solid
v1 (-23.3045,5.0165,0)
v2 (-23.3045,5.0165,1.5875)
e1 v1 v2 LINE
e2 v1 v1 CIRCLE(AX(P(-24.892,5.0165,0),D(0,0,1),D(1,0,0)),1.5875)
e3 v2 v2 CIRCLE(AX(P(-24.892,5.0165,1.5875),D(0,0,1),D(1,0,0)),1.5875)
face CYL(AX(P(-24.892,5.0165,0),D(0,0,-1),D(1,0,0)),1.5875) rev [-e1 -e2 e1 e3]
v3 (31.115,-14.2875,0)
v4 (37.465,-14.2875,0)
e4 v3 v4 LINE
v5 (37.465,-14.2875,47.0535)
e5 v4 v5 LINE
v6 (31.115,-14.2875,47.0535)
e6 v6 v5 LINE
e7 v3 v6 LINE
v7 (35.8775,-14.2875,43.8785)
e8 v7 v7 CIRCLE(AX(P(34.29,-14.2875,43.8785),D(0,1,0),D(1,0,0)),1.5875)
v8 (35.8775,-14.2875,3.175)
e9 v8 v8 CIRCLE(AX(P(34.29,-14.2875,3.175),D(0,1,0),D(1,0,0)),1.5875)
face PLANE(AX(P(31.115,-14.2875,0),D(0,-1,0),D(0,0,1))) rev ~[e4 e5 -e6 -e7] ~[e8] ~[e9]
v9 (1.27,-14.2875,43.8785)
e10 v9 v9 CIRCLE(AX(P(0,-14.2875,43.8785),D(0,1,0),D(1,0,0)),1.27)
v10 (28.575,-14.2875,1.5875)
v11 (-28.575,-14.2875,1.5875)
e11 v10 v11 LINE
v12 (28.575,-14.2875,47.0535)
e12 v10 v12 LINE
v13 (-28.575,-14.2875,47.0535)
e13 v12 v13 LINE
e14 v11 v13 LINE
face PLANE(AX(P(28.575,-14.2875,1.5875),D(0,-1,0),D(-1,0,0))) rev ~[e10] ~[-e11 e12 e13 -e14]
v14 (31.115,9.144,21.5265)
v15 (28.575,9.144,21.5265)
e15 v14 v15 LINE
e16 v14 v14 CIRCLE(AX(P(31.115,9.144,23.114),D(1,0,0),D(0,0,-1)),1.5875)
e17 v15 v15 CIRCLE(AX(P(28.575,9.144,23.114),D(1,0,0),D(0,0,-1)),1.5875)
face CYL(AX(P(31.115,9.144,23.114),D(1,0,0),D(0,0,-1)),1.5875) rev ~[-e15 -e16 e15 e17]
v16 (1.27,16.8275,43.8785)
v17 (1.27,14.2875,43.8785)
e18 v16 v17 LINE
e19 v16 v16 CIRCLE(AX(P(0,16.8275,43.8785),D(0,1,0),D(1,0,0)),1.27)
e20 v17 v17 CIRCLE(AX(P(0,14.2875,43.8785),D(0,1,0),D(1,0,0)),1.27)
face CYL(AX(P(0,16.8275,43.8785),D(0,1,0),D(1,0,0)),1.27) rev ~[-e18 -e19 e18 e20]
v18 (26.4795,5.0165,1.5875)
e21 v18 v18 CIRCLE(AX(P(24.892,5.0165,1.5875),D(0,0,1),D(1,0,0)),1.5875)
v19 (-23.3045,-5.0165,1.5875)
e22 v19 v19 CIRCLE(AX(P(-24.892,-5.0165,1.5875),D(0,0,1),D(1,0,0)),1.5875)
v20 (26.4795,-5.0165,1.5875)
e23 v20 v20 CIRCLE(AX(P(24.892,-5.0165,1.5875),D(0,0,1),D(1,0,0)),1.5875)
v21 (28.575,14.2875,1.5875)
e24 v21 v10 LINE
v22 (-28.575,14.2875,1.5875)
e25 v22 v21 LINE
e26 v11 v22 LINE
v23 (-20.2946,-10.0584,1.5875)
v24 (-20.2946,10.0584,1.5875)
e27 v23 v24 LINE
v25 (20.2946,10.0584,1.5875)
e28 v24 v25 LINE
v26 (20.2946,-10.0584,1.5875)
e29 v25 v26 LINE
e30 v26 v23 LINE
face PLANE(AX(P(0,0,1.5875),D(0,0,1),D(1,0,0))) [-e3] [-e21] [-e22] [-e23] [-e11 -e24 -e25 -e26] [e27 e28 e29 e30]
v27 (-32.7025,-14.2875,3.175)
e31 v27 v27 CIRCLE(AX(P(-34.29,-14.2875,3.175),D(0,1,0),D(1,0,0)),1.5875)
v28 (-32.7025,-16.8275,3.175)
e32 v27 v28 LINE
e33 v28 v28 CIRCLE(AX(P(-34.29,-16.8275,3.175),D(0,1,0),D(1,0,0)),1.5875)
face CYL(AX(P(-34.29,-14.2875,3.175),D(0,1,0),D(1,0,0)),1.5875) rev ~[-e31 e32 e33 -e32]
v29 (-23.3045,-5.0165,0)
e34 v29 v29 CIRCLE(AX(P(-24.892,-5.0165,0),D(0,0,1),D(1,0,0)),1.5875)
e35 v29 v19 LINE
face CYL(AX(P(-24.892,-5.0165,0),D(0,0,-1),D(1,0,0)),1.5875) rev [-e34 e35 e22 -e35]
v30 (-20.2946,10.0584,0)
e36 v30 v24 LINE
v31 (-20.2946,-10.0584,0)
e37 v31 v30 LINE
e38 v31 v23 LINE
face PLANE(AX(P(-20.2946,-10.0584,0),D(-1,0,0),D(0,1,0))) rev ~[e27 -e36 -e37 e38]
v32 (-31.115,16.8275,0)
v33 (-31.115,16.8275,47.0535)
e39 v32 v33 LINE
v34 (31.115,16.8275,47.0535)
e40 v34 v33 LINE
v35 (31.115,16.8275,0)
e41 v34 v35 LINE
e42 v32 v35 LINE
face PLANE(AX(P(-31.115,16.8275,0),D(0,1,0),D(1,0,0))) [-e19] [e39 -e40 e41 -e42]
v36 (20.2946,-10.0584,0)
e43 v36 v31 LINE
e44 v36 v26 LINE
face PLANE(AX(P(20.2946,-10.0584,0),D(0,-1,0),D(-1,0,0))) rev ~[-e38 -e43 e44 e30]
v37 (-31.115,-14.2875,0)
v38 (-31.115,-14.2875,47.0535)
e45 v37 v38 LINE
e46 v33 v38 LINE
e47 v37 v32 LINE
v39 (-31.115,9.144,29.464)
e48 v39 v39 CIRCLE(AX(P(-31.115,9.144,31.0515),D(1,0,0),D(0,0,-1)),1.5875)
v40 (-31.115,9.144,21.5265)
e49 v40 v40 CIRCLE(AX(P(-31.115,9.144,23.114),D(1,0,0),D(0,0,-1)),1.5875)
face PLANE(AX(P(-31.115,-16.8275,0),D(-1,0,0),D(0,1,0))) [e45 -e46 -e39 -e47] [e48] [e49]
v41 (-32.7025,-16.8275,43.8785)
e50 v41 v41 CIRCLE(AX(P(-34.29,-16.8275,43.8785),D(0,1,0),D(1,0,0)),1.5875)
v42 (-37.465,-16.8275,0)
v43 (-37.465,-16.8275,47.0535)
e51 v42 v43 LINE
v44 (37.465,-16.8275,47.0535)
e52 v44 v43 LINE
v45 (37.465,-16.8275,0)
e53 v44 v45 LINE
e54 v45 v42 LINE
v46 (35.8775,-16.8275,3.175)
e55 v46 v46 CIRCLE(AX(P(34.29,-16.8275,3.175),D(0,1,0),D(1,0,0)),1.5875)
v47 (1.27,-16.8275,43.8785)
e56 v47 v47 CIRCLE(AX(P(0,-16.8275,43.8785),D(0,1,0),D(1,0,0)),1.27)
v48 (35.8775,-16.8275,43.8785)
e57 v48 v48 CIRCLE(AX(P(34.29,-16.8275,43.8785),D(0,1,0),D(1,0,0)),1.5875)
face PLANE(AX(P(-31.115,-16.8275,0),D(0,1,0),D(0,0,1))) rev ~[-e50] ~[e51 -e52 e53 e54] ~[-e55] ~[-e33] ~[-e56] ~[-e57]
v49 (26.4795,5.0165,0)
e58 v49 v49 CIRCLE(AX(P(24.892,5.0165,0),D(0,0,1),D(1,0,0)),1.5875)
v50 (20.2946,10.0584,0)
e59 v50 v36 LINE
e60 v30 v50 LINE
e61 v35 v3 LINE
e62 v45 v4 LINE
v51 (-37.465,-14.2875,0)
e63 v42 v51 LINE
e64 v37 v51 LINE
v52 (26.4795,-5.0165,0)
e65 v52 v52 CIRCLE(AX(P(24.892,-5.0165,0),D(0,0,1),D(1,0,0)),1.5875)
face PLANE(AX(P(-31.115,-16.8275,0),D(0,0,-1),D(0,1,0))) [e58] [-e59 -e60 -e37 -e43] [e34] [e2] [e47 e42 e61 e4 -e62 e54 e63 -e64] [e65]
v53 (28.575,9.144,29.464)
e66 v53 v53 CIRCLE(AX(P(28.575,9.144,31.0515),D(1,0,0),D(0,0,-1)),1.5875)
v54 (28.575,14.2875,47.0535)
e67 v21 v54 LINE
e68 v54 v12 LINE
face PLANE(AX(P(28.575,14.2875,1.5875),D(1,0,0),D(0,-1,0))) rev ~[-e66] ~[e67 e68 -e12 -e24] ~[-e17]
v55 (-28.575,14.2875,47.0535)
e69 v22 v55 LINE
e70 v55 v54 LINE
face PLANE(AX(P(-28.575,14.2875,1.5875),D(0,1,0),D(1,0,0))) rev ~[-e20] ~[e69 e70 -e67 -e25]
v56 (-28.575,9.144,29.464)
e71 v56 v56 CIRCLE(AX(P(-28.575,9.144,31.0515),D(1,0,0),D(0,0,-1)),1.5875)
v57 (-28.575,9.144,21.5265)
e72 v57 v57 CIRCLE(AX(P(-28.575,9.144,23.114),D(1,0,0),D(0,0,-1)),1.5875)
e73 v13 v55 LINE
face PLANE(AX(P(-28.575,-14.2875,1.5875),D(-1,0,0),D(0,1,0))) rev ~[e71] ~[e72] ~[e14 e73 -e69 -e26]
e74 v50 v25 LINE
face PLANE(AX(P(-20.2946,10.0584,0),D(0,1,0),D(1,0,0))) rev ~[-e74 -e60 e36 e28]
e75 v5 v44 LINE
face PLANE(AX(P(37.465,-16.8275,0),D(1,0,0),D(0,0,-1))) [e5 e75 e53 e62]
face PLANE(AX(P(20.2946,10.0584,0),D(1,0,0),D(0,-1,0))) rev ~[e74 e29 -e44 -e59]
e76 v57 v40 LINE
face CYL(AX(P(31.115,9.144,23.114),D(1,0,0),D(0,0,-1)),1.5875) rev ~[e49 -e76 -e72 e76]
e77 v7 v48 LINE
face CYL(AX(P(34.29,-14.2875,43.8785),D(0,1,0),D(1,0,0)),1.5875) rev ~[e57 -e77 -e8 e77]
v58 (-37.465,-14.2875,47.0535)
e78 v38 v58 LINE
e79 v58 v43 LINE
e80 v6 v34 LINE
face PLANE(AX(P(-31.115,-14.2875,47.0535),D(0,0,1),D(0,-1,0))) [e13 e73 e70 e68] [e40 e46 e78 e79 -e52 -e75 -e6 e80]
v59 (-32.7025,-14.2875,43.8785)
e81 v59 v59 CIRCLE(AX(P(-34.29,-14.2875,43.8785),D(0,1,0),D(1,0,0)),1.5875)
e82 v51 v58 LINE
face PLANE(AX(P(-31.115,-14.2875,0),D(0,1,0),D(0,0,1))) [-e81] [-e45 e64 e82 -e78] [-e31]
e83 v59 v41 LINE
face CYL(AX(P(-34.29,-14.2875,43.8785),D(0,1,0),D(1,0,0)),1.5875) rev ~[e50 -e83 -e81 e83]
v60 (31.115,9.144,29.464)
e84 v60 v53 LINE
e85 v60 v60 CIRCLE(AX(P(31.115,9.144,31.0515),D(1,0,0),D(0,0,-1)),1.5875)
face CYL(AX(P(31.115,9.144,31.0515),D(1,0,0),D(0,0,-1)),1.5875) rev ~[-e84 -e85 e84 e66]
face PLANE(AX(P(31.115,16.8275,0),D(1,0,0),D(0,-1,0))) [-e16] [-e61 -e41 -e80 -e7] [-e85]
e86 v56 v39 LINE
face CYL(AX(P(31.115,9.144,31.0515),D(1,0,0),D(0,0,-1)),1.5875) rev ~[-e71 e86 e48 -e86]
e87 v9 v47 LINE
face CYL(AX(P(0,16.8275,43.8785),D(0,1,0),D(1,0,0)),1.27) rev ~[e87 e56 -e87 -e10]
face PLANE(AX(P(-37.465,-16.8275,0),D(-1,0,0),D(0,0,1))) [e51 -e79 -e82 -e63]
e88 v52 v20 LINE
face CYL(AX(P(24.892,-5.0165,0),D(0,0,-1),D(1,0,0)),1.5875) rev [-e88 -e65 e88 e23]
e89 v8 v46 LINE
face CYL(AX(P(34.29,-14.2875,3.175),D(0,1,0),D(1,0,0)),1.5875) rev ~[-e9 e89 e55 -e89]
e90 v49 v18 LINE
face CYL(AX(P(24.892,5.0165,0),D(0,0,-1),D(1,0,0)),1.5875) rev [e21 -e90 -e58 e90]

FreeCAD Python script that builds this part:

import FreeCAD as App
import Part
import Sketcher
from FreeCAD import Vector
Q = App.Units.Quantity

doc = App.newDocument("Part")
params = doc.addObject("Spreadsheet::Sheet", "Params")
for row, (alias, value) in enumerate([
    ("sketch1_diameter", "0.125 in"),
    ("sketch1_width", "2.45 in"),
    ("sketch1_width2", "1.598 in"),
    ("sketch1_height", "1.325 in"),
    ("sketch1_height2", "0.792 in"),
    ("pad1_length", "0.0625 in"),
    ("sketch2_width", "2.25 in"),
    ("sketch2_height", "1.125 in"),
    ("sketch2_width2", "2.45 in"),
    ("pad2_length", "1.79 in"),
    ("sketch3_diameter", "0.125 in"),
    ("sketch4_width", "0.1 in"),
    ("pad3_length", "0.25 in"),
    ("sketch5_diameter", "0.125 in"),
    ("pocket2_length", "0.25 in"),
    ("sketch6_width", "0.1 in"),
    ("pad4_length", "0.25 in"),
    ("sketch7_diameter", "0.125 in"),
    ("pocket3_length", "0.25 in"),
    ("sketch8_diameter", "0.1 in"),
], start=1):
    params.set(f"A{row}", alias)
    params.set(f"B{row}", "=" + value)
    params.setAlias(f"B{row}", alias)

body = doc.addObject("PartDesign::Body", "Body")

sketch1 = doc.addObject("Sketcher::SketchObject", "Sketch")
body.addObject(sketch1)
sketch1.AttachmentSupport = (doc.XY_Plane, [""])
sketch1.MapMode = "FlatFace"
sketch1.addGeometry(Part.LineSegment(Vector(31.1, 16.8, 0), Vector(-31.1, 16.8, 0)), False)
sketch1.addGeometry(Part.LineSegment(Vector(-31.1, 16.8, 0), Vector(-31.1, -16.8, 0)), False)
sketch1.addGeometry(Part.LineSegment(Vector(-31.1, -16.8, 0), Vector(31.1, -16.8, 0)), False)
sketch1.addGeometry(Part.LineSegment(Vector(31.1, -16.8, 0), Vector(31.1, 16.8, 0)), False)
sketch1.addGeometry(Part.Circle(Vector(-24.9, -5, 0), Vector(0, 0, 1), 1.6), False)
sketch1.addGeometry(Part.Circle(Vector(24.9, -5, 0), Vector(0, 0, 1), 1.6), False)
sketch1.addGeometry(Part.Circle(Vector(-24.9, 5, 0), Vector(0, 0, 1), 1.6), False)
sketch1.addGeometry(Part.LineSegment(Vector(-20.3, -10.1, 0), Vector(-20.3, 10.1, 0)), False)
sketch1.addGeometry(Part.LineSegment(Vector(-20.3, 10.1, 0), Vector(20.3, 10.1, 0)), False)
sketch1.addGeometry(Part.LineSegment(Vector(20.3, 10.1, 0), Vector(20.3, -10.1, 0)), False)
sketch1.addGeometry(Part.LineSegment(Vector(20.3, -10.1, 0), Vector(-20.3, -10.1, 0)), False)
sketch1.addGeometry(Part.Circle(Vector(24.9, 5, 0), Vector(0, 0, 1), 1.6), False)
sketch1.addConstraint(Sketcher.Constraint("Coincident", 0, 2, 1, 1))
sketch1.addConstraint(Sketcher.Constraint("Coincident", 1, 2, 2, 1))
sketch1.addConstraint(Sketcher.Constraint("Coincident", 2, 2, 3, 1))
sketch1.addConstraint(Sketcher.Constraint("Coincident", 3, 2, 0, 1))
sketch1.addConstraint(Sketcher.Constraint("Coincident", 7, 2, 8, 1))
sketch1.addConstraint(Sketcher.Constraint("Coincident", 8, 2, 9, 1))
sketch1.addConstraint(Sketcher.Constraint("Coincident", 9, 2, 10, 1))
sketch1.addConstraint(Sketcher.Constraint("Coincident", 10, 2, 7, 1))
sketch1.addConstraint(Sketcher.Constraint("Horizontal", 0))
sketch1.addConstraint(Sketcher.Constraint("Vertical", 1))
sketch1.addConstraint(Sketcher.Constraint("Horizontal", 2))
sketch1.addConstraint(Sketcher.Constraint("Vertical", 3))
sketch1.addConstraint(Sketcher.Constraint("Vertical", 7))
sketch1.addConstraint(Sketcher.Constraint("Horizontal", 8))
sketch1.addConstraint(Sketcher.Constraint("Vertical", 9))
sketch1.addConstraint(Sketcher.Constraint("Horizontal", 10))
sketch1.addConstraint(Sketcher.Constraint("Equal", 4, 5))
sketch1.addConstraint(Sketcher.Constraint("Equal", 5, 6))
sketch1.addConstraint(Sketcher.Constraint("Equal", 6, 11))
sketch1.addConstraint(Sketcher.Constraint("Symmetric", 5, 3, 6, 3, -1, 1))
sketch1.addConstraint(Sketcher.Constraint("Symmetric", 4, 3, 11, 3, -1, 1))
sketch1.addConstraint(Sketcher.Constraint("Symmetric", 0, 2, 2, 2, -1, 1))
sketch1.addConstraint(Sketcher.Constraint("Symmetric", 7, 2, 9, 2, -1, 1))
sketch1.addConstraint(Sketcher.Constraint("Symmetric", 4, 3, 5, 3, -2))
sketch1.addConstraint(Sketcher.Constraint("Diameter", 4, Q("0.125 in")))
sketch1.addConstraint(Sketcher.Constraint("DistanceX", 0, 2, 0, 1, Q("2.45 in")))
sketch1.addConstraint(Sketcher.Constraint("DistanceX", 8, 1, 8, 2, Q("1.598 in")))
sketch1.addConstraint(Sketcher.Constraint("DistanceY", 1, 2, 1, 1, Q("1.325 in")))
sketch1.addConstraint(Sketcher.Constraint("DistanceY", 7, 1, 7, 2, Q("0.792 in")))
sketch1.addConstraint(Sketcher.Constraint("DistanceX", 4, 3, -1, 1, Q("0.98 in")))
sketch1.addConstraint(Sketcher.Constraint("DistanceY", 4, 3, -1, 1, Q("0.1975 in")))
sketch1.setExpression("Constraints[24]", "Params.sketch1_diameter")
sketch1.setExpression("Constraints[25]", "Params.sketch1_width")
sketch1.setExpression("Constraints[26]", "Params.sketch1_width2")
sketch1.setExpression("Constraints[27]", "Params.sketch1_height")
sketch1.setExpression("Constraints[28]", "Params.sketch1_height2")
pad1 = doc.addObject("PartDesign::Pad", "Pad")
body.addObject(pad1)
pad1.Profile = sketch1
pad1.setExpression("Length", "Params.pad1_length")

sketch2 = doc.addObject("Sketcher::SketchObject", "Sketch001")
body.addObject(sketch2)
sketch2.AttachmentSupport = (doc.XY_Plane, [""])
sketch2.MapMode = "FlatFace"
sketch2.AttachmentOffset = App.Placement(Vector(0, 0, 0.0625 * 25.4), App.Rotation())
sketch2.addGeometry(Part.LineSegment(Vector(31, -17, 0), Vector(31, 17, 0)), False)
sketch2.addGeometry(Part.LineSegment(Vector(31, 17, 0), Vector(-31, 17, 0)), False)
sketch2.addGeometry(Part.LineSegment(Vector(-31, 17, 0), Vector(-31, -17, 0)), False)
sketch2.addGeometry(Part.LineSegment(Vector(-31, -17, 0), Vector(31, -17, 0)), False)
sketch2.addGeometry(Part.LineSegment(Vector(-29, -14, 0), Vector(-29, 14, 0)), False)
sketch2.addGeometry(Part.LineSegment(Vector(-29, 14, 0), Vector(29, 14, 0)), False)
sketch2.addGeometry(Part.LineSegment(Vector(29, 14, 0), Vector(29, -14, 0)), False)
sketch2.addGeometry(Part.LineSegment(Vector(29, -14, 0), Vector(-29, -14, 0)), False)
sketch2.addConstraint(Sketcher.Constraint("Coincident", 0, 2, 1, 1))
sketch2.addConstraint(Sketcher.Constraint("Coincident", 1, 2, 2, 1))
sketch2.addConstraint(Sketcher.Constraint("Coincident", 2, 2, 3, 1))
sketch2.addConstraint(Sketcher.Constraint("Coincident", 3, 2, 0, 1))
sketch2.addConstraint(Sketcher.Constraint("Coincident", 4, 2, 5, 1))
sketch2.addConstraint(Sketcher.Constraint("Coincident", 5, 2, 6, 1))
sketch2.addConstraint(Sketcher.Constraint("Coincident", 6, 2, 7, 1))
sketch2.addConstraint(Sketcher.Constraint("Coincident", 7, 2, 4, 1))
sketch2.addConstraint(Sketcher.Constraint("Vertical", 0))
sketch2.addConstraint(Sketcher.Constraint("Horizontal", 1))
sketch2.addConstraint(Sketcher.Constraint("Vertical", 2))
sketch2.addConstraint(Sketcher.Constraint("Horizontal", 3))
sketch2.addConstraint(Sketcher.Constraint("Vertical", 4))
sketch2.addConstraint(Sketcher.Constraint("Horizontal", 5))
sketch2.addConstraint(Sketcher.Constraint("Vertical", 6))
sketch2.addConstraint(Sketcher.Constraint("Horizontal", 7))
sketch2.addConstraint(Sketcher.Constraint("Symmetric", 0, 2, 2, 2, -1, 1))
sketch2.addConstraint(Sketcher.Constraint("Symmetric", 4, 2, 6, 2, -1, 1))
sketch2.addConstraint(Sketcher.Constraint("DistanceX", 5, 1, 5, 2, Q("2.25 in")))
sketch2.addConstraint(Sketcher.Constraint("DistanceY", 4, 1, 4, 2, Q("1.125 in")))
sketch2.addConstraint(Sketcher.Constraint("DistanceX", 1, 2, 1, 1, Q("2.45 in")))
sketch2.addConstraint(Sketcher.Constraint("DistanceY", 4, 2, 1, 2, Q("0.1 in")))
sketch2.setExpression("Constraints[18]", "Params.sketch2_width")
sketch2.setExpression("Constraints[19]", "Params.sketch2_height")
sketch2.setExpression("Constraints[20]", "Params.sketch2_width2")
pad2 = doc.addObject("PartDesign::Pad", "Pad001")
body.addObject(pad2)
pad2.Profile = sketch2
pad2.setExpression("Length", "Params.pad2_length")

sketch3 = doc.addObject("Sketcher::SketchObject", "Sketch002")
body.addObject(sketch3)
sketch3.AttachmentSupport = (doc.YZ_Plane, [""])
sketch3.MapMode = "FlatFace"
sketch3.AttachmentOffset = App.Placement(Vector(0, 0, 1.225 * 25.4), App.Rotation())
sketch3.addGeometry(Part.Circle(Vector(9.1, 23.1, 0), Vector(0, 0, 1), 1.6), False)
sketch3.addGeometry(Part.Circle(Vector(9.1, 31.1, 0), Vector(0, 0, 1), 1.6), False)
sketch3.addConstraint(Sketcher.Constraint("Equal", 0, 1))
sketch3.addConstraint(Sketcher.Constraint("Vertical", 0, 3, 1, 3))
sketch3.addConstraint(Sketcher.Constraint("Diameter", 0, Q("0.125 in")))
sketch3.addConstraint(Sketcher.Constraint("DistanceX", -1, 1, 0, 3, Q("0.36 in")))
sketch3.addConstraint(Sketcher.Constraint("DistanceY", -1, 1, 0, 3, Q("0.91 in")))
sketch3.addConstraint(Sketcher.Constraint("DistanceY", 0, 3, 1, 3, Q("0.3125 in")))
sketch3.setExpression("Constraints[2]", "Params.sketch3_diameter")
pocket1 = doc.addObject("PartDesign::Pocket", "Pocket")
body.addObject(pocket1)
pocket1.Profile = sketch3
pocket1.Type = "ThroughAll"

sketch4 = doc.addObject("Sketcher::SketchObject", "Sketch003")
body.addObject(sketch4)
sketch4.AttachmentSupport = (doc.YZ_Plane, [""])
sketch4.MapMode = "FlatFace"
sketch4.AttachmentOffset = App.Placement(Vector(0, 0, 1.225 * 25.4), App.Rotation())
sketch4.addGeometry(Part.LineSegment(Vector(-16.8, 47.1, 0), Vector(-16.8, 0, 0)), False)
sketch4.addGeometry(Part.LineSegment(Vector(-16.8, 0, 0), Vector(-14.3, 0, 0)), False)
sketch4.addGeometry(Part.LineSegment(Vector(-14.3, 0, 0), Vector(-14.3, 47.1, 0)), False)
sketch4.addGeometry(Part.LineSegment(Vector(-14.3, 47.1, 0), Vector(-16.8, 47.1, 0)), False)
sketch4.addConstraint(Sketcher.Constraint("Coincident", 0, 2, 1, 1))
sketch4.addConstraint(Sketcher.Constraint("Coincident", 1, 2, 2, 1))
sketch4.addConstraint(Sketcher.Constraint("Coincident", 2, 2, 3, 1))
sketch4.addConstraint(Sketcher.Constraint("Coincident", 3, 2, 0, 1))
sketch4.addConstraint(Sketcher.Constraint("Vertical", 0))
sketch4.addConstraint(Sketcher.Constraint("Horizontal", 1))
sketch4.addConstraint(Sketcher.Constraint("Vertical", 2))
sketch4.addConstraint(Sketcher.Constraint("Horizontal", 3))
sketch4.addConstraint(Sketcher.Constraint("PointOnObject", 0, 2, -1))
sketch4.addConstraint(Sketcher.Constraint("DistanceX", 1, 1, 1, 2, Q("0.1 in")))
sketch4.addConstraint(Sketcher.Constraint("DistanceY", 0, 2, 0, 1, Q("1.8525 in")))
sketch4.addConstraint(Sketcher.Constraint("DistanceX", 1, 2, -1, 1, Q("0.5625 in")))
sketch4.setExpression("Constraints[9]", "Params.sketch4_width")
pad3 = doc.addObject("PartDesign::Pad", "Pad002")
body.addObject(pad3)
pad3.Profile = sketch4
pad3.setExpression("Length", "Params.pad3_length")

sketch5 = doc.addObject("Sketcher::SketchObject", "Sketch004")
body.addObject(sketch5)
sketch5.AttachmentSupport = (doc.XZ_Plane, [""])
sketch5.MapMode = "FlatFace"
sketch5.AttachmentOffset = App.Placement(Vector(0, 0, 0.5625 * 25.4), App.Rotation())
sketch5.addGeometry(Part.Circle(Vector(34.3, 43.9, 0), Vector(0, 0, 1), 1.6), False)
sketch5.addGeometry(Part.Circle(Vector(34.3, 3.2, 0), Vector(0, 0, 1), 1.6), False)
sketch5.addConstraint(Sketcher.Constraint("Equal", 0, 1))
sketch5.addConstraint(Sketcher.Constraint("Vertical", 0, 3, 1, 3))
sketch5.addConstraint(Sketcher.Constraint("Diameter", 0, Q("0.125 in")))
sketch5.addConstraint(Sketcher.Constraint("DistanceY", -1, 1, 1, 3, Q("0.125 in")))
sketch5.addConstraint(Sketcher.Constraint("DistanceX", -1, 1, 0, 3, Q("1.35 in")))
sketch5.addConstraint(Sketcher.Constraint("DistanceY", -1, 1, 0, 3, Q("1.7275 in")))
sketch5.setExpression("Constraints[2]", "Params.sketch5_diameter")
pocket2 = doc.addObject("PartDesign::Pocket", "Pocket001")
body.addObject(pocket2)
pocket2.Profile = sketch5
pocket2.setExpression("Length", "Params.pocket2_length")
pocket2.Reversed = True

sketch6 = doc.addObject("Sketcher::SketchObject", "Sketch005")
body.addObject(sketch6)
sketch6.AttachmentSupport = (doc.YZ_Plane, [""])
sketch6.MapMode = "FlatFace"
sketch6.AttachmentOffset = App.Placement(Vector(0, 0, -1.225 * 25.4), App.Rotation())
sketch6.addGeometry(Part.LineSegment(Vector(-14.3, 0, 0), Vector(-16.8, 0, 0)), False)
sketch6.addGeometry(Part.LineSegment(Vector(-16.8, 0, 0), Vector(-16.8, 47.1, 0)), False)
sketch6.addGeometry(Part.LineSegment(Vector(-16.8, 47.1, 0), Vector(-14.3, 47.1, 0)), False)
sketch6.addGeometry(Part.LineSegment(Vector(-14.3, 47.1, 0), Vector(-14.3, 0, 0)), False)
sketch6.addConstraint(Sketcher.Constraint("Coincident", 0, 2, 1, 1))
sketch6.addConstraint(Sketcher.Constraint("Coincident", 1, 2, 2, 1))
sketch6.addConstraint(Sketcher.Constraint("Coincident", 2, 2, 3, 1))
sketch6.addConstraint(Sketcher.Constraint("Coincident", 3, 2, 0, 1))
sketch6.addConstraint(Sketcher.Constraint("Horizontal", 0))
sketch6.addConstraint(Sketcher.Constraint("Vertical", 1))
sketch6.addConstraint(Sketcher.Constraint("Horizontal", 2))
sketch6.addConstraint(Sketcher.Constraint("Vertical", 3))
sketch6.addConstraint(Sketcher.Constraint("PointOnObject", 0, 2, -1))
sketch6.addConstraint(Sketcher.Constraint("DistanceX", 0, 2, 0, 1, Q("0.1 in")))
sketch6.addConstraint(Sketcher.Constraint("DistanceY", 1, 1, 1, 2, Q("1.8525 in")))
sketch6.addConstraint(Sketcher.Constraint("DistanceX", 2, 2, -1, 1, Q("0.5625 in")))
sketch6.setExpression("Constraints[9]", "Params.sketch6_width")
pad4 = doc.addObject("PartDesign::Pad", "Pad003")
body.addObject(pad4)
pad4.Profile = sketch6
pad4.setExpression("Length", "Params.pad4_length")
pad4.Reversed = True

sketch7 = doc.addObject("Sketcher::SketchObject", "Sketch006")
body.addObject(sketch7)
sketch7.AttachmentSupport = (doc.XZ_Plane, [""])
sketch7.MapMode = "FlatFace"
sketch7.AttachmentOffset = App.Placement(Vector(0, 0, 0.5625 * 25.4), App.Rotation())
sketch7.addGeometry(Part.Circle(Vector(-34.3, 3.2, 0), Vector(0, 0, 1), 1.6), False)
sketch7.addGeometry(Part.Circle(Vector(-34.3, 43.9, 0), Vector(0, 0, 1), 1.6), False)
sketch7.addConstraint(Sketcher.Constraint("Equal", 0, 1))
sketch7.addConstraint(Sketcher.Constraint("Vertical", 0, 3, 1, 3))
sketch7.addConstraint(Sketcher.Constraint("Diameter", 0, Q("0.125 in")))
sketch7.addConstraint(Sketcher.Constraint("DistanceY", -1, 1, 0, 3, Q("0.125 in")))
sketch7.addConstraint(Sketcher.Constraint("DistanceX", 0, 3, -1, 1, Q("1.35 in")))
sketch7.addConstraint(Sketcher.Constraint("DistanceY", -1, 1, 1, 3, Q("1.7275 in")))
sketch7.setExpression("Constraints[2]", "Params.sketch7_diameter")
pocket3 = doc.addObject("PartDesign::Pocket", "Pocket002")
body.addObject(pocket3)
pocket3.Profile = sketch7
pocket3.setExpression("Length", "Params.pocket3_length")
pocket3.Reversed = True

sketch8 = doc.addObject("Sketcher::SketchObject", "Sketch007")
body.addObject(sketch8)
sketch8.AttachmentSupport = (doc.XZ_Plane, [""])
sketch8.MapMode = "FlatFace"
sketch8.AttachmentOffset = App.Placement(Vector(0, 0, -0.6625 * 25.4), App.Rotation())
sketch8.addGeometry(Part.Circle(Vector(0, 43.9, 0), Vector(0, 0, 1), 1.3), False)
sketch8.addConstraint(Sketcher.Constraint("PointOnObject", 0, 3, -2))
sketch8.addConstraint(Sketcher.Constraint("Diameter", 0, Q("0.1 in")))
sketch8.addConstraint(Sketcher.Constraint("DistanceY", -1, 1, 0, 3, Q("1.7275 in")))
sketch8.setExpression("Constraints[1]", "Params.sketch8_diameter")
pocket4 = doc.addObject("PartDesign::Pocket", "Pocket003")
body.addObject(pocket4)
pocket4.Profile = sketch8
pocket4.Type = "ThroughAll"
pocket4.Reversed = True

doc.recompute()
